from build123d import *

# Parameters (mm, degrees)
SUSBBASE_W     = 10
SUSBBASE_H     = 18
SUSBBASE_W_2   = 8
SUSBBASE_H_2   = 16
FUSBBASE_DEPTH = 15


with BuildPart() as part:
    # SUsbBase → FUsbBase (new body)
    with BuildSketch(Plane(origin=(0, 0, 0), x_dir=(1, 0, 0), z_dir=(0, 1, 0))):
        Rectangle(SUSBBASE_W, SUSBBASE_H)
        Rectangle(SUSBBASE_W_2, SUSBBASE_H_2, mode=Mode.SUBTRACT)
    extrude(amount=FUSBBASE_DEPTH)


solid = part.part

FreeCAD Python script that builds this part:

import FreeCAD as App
import Part
import Sketcher
from FreeCAD import Vector


def add_polygon(sketch, points):
    """Adds a closed chain of lines whose ends are joined by coincident constraints."""
    first, n = sketch.GeometryCount, len(points)
    for a, b in zip(points, points[1:] + points[:1]):
        sketch.addGeometry(Part.LineSegment(App.Vector(*a, 0), App.Vector(*b, 0)), False)
    for i in range(n):
        sketch.addConstraint(Sketcher.Constraint("Coincident", first + i, 2, first + (i + 1) % n, 1))

doc = App.newDocument("Part")
body = doc.addObject("PartDesign::Body", "Body")

# Sketch on XZ plane
sketch1 = doc.addObject("Sketcher::SketchObject", "Sketch")
body.addObject(sketch1)
sketch1.AttachmentSupport = (doc.XZ_Plane, [""])
sketch1.MapMode = "FlatFace"
add_polygon(sketch1, [(-5, -9), (-5, 9), (5, 9), (5, -9)])  # lines 0-3
add_polygon(sketch1, [(4, 8), (-4, 8), (-4, -8), (4, -8)])  # lines 4-7
sketch1.addConstraint([
    Sketcher.Constraint("Vertical", 0),
    Sketcher.Constraint("Horizontal", 1),
    Sketcher.Constraint("Vertical", 2),
    Sketcher.Constraint("Horizontal", 3),
    Sketcher.Constraint("Horizontal", 4),
    Sketcher.Constraint("Vertical", 5),
    Sketcher.Constraint("Horizontal", 6),
    Sketcher.Constraint("Vertical", 7),
    Sketcher.Constraint("Symmetric", 0, 2, 2, 2, -1, 1),
    Sketcher.Constraint("Symmetric", 4, 2, 6, 2, -1, 1),
    Sketcher.Constraint("DistanceX", 1, 1, 1, 2, 10.0),
    Sketcher.Constraint("DistanceX", 4, 2, 4, 1, 8.0),
    Sketcher.Constraint("DistanceY", 0, 1, 0, 2, 18.0),
    Sketcher.Constraint("DistanceY", 5, 2, 5, 1, 16.0),
])
pad1 = doc.addObject("PartDesign::Pad", "Pad")
body.addObject(pad1)
pad1.Profile = sketch1
pad1.Length = 15
pad1.Reversed = True

doc.recompute()
